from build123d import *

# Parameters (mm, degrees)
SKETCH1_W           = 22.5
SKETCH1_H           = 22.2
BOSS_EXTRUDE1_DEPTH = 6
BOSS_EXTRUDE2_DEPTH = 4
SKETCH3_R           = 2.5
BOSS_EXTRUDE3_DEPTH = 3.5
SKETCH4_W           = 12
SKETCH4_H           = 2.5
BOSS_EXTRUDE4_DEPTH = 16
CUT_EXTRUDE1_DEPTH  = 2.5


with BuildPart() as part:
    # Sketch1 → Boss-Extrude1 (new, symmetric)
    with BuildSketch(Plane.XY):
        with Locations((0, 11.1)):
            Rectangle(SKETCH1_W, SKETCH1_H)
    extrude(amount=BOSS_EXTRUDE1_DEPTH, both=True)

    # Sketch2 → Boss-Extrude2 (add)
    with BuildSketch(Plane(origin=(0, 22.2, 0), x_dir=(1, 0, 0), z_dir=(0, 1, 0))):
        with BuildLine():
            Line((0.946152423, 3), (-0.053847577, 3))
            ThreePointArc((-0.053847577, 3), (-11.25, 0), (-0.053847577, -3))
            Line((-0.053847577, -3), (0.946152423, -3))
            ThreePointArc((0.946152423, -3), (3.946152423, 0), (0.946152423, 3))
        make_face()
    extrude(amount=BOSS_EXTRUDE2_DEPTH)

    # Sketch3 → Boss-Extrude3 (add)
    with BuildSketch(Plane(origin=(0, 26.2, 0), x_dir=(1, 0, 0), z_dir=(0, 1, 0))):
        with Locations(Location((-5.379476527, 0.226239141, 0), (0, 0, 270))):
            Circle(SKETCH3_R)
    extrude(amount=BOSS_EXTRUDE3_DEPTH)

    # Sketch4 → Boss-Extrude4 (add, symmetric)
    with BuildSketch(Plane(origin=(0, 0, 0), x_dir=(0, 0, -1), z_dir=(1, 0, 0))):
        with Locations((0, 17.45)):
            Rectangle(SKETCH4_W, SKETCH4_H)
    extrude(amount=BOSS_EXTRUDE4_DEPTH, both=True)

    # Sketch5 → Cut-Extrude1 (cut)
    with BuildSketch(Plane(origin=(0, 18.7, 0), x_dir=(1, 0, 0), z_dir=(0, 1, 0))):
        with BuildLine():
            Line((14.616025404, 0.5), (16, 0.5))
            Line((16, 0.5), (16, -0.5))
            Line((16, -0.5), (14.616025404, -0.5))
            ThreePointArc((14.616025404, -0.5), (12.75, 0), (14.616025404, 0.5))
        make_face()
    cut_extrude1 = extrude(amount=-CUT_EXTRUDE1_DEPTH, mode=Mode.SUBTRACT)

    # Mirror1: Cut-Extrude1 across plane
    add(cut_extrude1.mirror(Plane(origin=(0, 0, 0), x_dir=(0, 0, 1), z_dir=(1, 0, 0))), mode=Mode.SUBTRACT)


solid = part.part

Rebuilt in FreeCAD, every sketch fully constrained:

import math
import FreeCAD as App
import Part
import Sketcher

V = App.Vector
Q = App.Units.Quantity

doc = App.newDocument("Part")
params = doc.addObject("Spreadsheet::Sheet", "Params")
for row, (alias, value) in enumerate([
    ("sketch1_width", "22.5 mm"),
    ("sketch1_height", "22.2 mm"),
    ("pad1_length", "12 mm"),
    ("sketch2_radius", "6 mm"),
    ("sketch2_radius2", "3 mm"),
    ("sketch2_width", "1 mm"),
    ("pad2_length", "4 mm"),
    ("sketch3_diameter", "5 mm"),
    ("pad3_length", "3.5 mm"),
    ("sketch4_height", "12 mm"),
    ("sketch4_width", "2.5 mm"),
    ("pad4_length", "32 mm"),
    ("sketch5_radius", "1 mm"),
    ("sketch5_height", "1 mm"),
    ("pocket1_length", "2.5 mm"),
], start=1):
    params.set(f"A{row}", alias)
    params.set(f"B{row}", "=" + value)
    params.setAlias(f"B{row}", alias)

body = doc.addObject("PartDesign::Body", "Body")

sketch1 = body.newObject("Sketcher::SketchObject", "Sketch")
sketch1.AttachmentSupport = (doc.getObject("XY_Plane"), [""])
sketch1.MapMode = "FlatFace"
sketch1.addGeometry([
    Part.LineSegment(V(-11, 22, 0), V(-11, 0, 0)),
    Part.LineSegment(V(-11, 0, 0), V(11, 0, 0)),
    Part.LineSegment(V(11, 0, 0), V(11, 22, 0)),
    Part.LineSegment(V(11, 22, 0), V(-11, 22, 0)),
], False)
sketch1.addConstraint([
    Sketcher.Constraint("Coincident", 0, 2, 1, 1),
    Sketcher.Constraint("Coincident", 1, 2, 2, 1),
    Sketcher.Constraint("Coincident", 2, 2, 3, 1),
    Sketcher.Constraint("Coincident", 3, 2, 0, 1),
    Sketcher.Constraint("Vertical", 0),
    Sketcher.Constraint("Horizontal", 1),
    Sketcher.Constraint("Vertical", 2),
    Sketcher.Constraint("Horizontal", 3),
    Sketcher.Constraint("Symmetric", 0, 2, 1, 2, -1, 1),
    Sketcher.Constraint("DistanceX", 1, 1, 1, 2, Q("22.5 mm")),
    Sketcher.Constraint("DistanceY", 0, 2, 0, 1, Q("22.2 mm")),
])
sketch1.setExpression("Constraints[9]", "Params.sketch1_width")
sketch1.setExpression("Constraints[10]", "Params.sketch1_height")
pad1 = body.newObject("PartDesign::Pad", "Pad")
pad1.Profile = sketch1
pad1.setExpression("Length", "Params.pad1_length")
pad1.Midplane = True

sketch2 = body.newObject("Sketcher::SketchObject", "Sketch001")
sketch2.AttachmentSupport = (doc.getObject("XZ_Plane"), [""])
sketch2.MapMode = "FlatFace"
sketch2.AttachmentOffset = App.Placement(V(0, 0, -22.2), App.Rotation())
sketch2.addGeometry([
    Part.LineSegment(V(0.9, -3, 0), V(-0.1, -3, 0)),
    Part.ArcOfCircle(Part.Circle(V(-5.2, 0, 0), V(0, 0, 1), 6), math.radians(30), math.radians(330)),
    Part.LineSegment(V(-0.1, 3, 0), V(0.9, 3, 0)),
    Part.ArcOfCircle(Part.Circle(V(0.9, 0, 0), V(0, 0, 1), 3), math.radians(-90), math.radians(90)),
], False)
sketch2.addConstraint([
    Sketcher.Constraint("Coincident", 0, 2, 1, 2),
    Sketcher.Constraint("Coincident", 1, 1, 2, 1),
    Sketcher.Constraint("Tangent", 2, 2, 3, 2),
    Sketcher.Constraint("Tangent", 3, 1, 0, 1),
    Sketcher.Constraint("Horizontal", 0),
    Sketcher.Constraint("Horizontal", 2),
    Sketcher.Constraint("Symmetric", 0, 2, 1, 1, -1),
    Sketcher.Constraint("Radius", 1, Q("6 mm")),
    Sketcher.Constraint("Radius", 3, Q("3 mm")),
    Sketcher.Constraint("DistanceX", 0, 2, 0, 1, Q("1 mm")),
    Sketcher.Constraint("DistanceX", 1, 3, -1, 1, Q("5.25 mm")),
])
sketch2.setExpression("Constraints[7]", "Params.sketch2_radius")
sketch2.setExpression("Constraints[8]", "Params.sketch2_radius2")
sketch2.setExpression("Constraints[9]", "Params.sketch2_width")
pad2 = body.newObject("PartDesign::Pad", "Pad001")
pad2.Profile = sketch2
pad2.setExpression("Length", "Params.pad2_length")
pad2.Reversed = True

sketch3 = body.newObject("Sketcher::SketchObject", "Sketch002")
sketch3.AttachmentSupport = (doc.getObject("XZ_Plane"), [""])
sketch3.MapMode = "FlatFace"
sketch3.AttachmentOffset = App.Placement(V(0, 0, -26.2), App.Rotation())
sketch3.addGeometry(Part.Circle(V(-5.4, -0.2, 0), V(0, 0, 1), 2.5), False)
sketch3.addConstraint([
    Sketcher.Constraint("Diameter", 0, Q("5 mm")),
    Sketcher.Constraint("DistanceY", 0, 3, -1, 1, Q("0.226239 mm")),
    Sketcher.Constraint("DistanceX", 0, 3, -1, 1, Q("5.379477 mm")),
])
sketch3.setExpression("Constraints[0]", "Params.sketch3_diameter")
pad3 = body.newObject("PartDesign::Pad", "Pad002")
pad3.Profile = sketch3
pad3.setExpression("Length", "Params.pad3_length")
pad3.Reversed = True

sketch4 = body.newObject("Sketcher::SketchObject", "Sketch003")
sketch4.AttachmentSupport = (doc.getObject("YZ_Plane"), [""])
sketch4.MapMode = "FlatFace"
sketch4.addGeometry([
    Part.LineSegment(V(18.7, 6, 0), V(16.2, 6, 0)),
    Part.LineSegment(V(16.2, 6, 0), V(16.2, -6, 0)),
    Part.LineSegment(V(16.2, -6, 0), V(18.7, -6, 0)),
    Part.LineSegment(V(18.7, -6, 0), V(18.7, 6, 0)),
], False)
sketch4.addConstraint([
    Sketcher.Constraint("Coincident", 0, 2, 1, 1),
    Sketcher.Constraint("Coincident", 1, 2, 2, 1),
    Sketcher.Constraint("Coincident", 2, 2, 3, 1),
    Sketcher.Constraint("Coincident", 3, 2, 0, 1),
    Sketcher.Constraint("Horizontal", 0),
    Sketcher.Constraint("Vertical", 1),
    Sketcher.Constraint("Horizontal", 2),
    Sketcher.Constraint("Vertical", 3),
    Sketcher.Constraint("DistanceY", 1, 2, 1, 1, Q("12 mm")),
    Sketcher.Constraint("DistanceX", 0, 2, 0, 1, Q("2.5 mm")),
    Sketcher.Constraint("DistanceY", -1, 1, 0, 2, Q("6 mm")),
    Sketcher.Constraint("DistanceX", -1, 1, 0, 2, Q("16.2 mm")),
])
sketch4.setExpression("Constraints[8]", "Params.sketch4_height")
sketch4.setExpression("Constraints[9]", "Params.sketch4_width")
pad4 = body.newObject("PartDesign::Pad", "Pad003")
pad4.Profile = sketch4
pad4.setExpression("Length", "Params.pad4_length")
pad4.Midplane = True

sketch5 = body.newObject("Sketcher::SketchObject", "Sketch004")
sketch5.AttachmentSupport = (doc.getObject("XZ_Plane"), [""])
sketch5.MapMode = "FlatFace"
sketch5.AttachmentOffset = App.Placement(V(0, 0, -18.7), App.Rotation())
sketch5.addGeometry([
    Part.LineSegment(V(16, -0.5, 0), V(14.6, -0.5, 0)),
    Part.ArcOfCircle(Part.Circle(V(13.8, 0, 0), V(0, 0, 1), 1), math.radians(30), math.radians(330)),
    Part.LineSegment(V(14.6, 0.5, 0), V(16, 0.5, 0)),
    Part.LineSegment(V(16, 0.5, 0), V(16, -0.5, 0)),
], False)
sketch5.addConstraint([
    Sketcher.Constraint("Coincident", 0, 2, 1, 2),
    Sketcher.Constraint("Coincident", 1, 1, 2, 1),
    Sketcher.Constraint("Coincident", 2, 2, 3, 1),
    Sketcher.Constraint("Coincident", 3, 2, 0, 1),
    Sketcher.Constraint("Horizontal", 0),
    Sketcher.Constraint("Horizontal", 2),
    Sketcher.Constraint("Vertical", 3),
    Sketcher.Constraint("Symmetric", 0, 2, 1, 1, -1),
    Sketcher.Constraint("Radius", 1, Q("1 mm")),
    Sketcher.Constraint("DistanceY", 3, 2, 3, 1, Q("1 mm")),
    Sketcher.Constraint("DistanceX", -1, 1, 2, 2, Q("16 mm")),
    Sketcher.Constraint("DistanceX", -1, 1, 1, 3, Q("13.75 mm")),
])
sketch5.setExpression("Constraints[8]", "Params.sketch5_radius")
sketch5.setExpression("Constraints[9]", "Params.sketch5_height")
pocket1 = body.newObject("PartDesign::Pocket", "Pocket")
pocket1.Profile = sketch5
pocket1.setExpression("Length", "Params.pocket1_length")
pocket1.Reversed = True
doc.recompute()

mirrored = body.newObject("PartDesign::Mirrored", "Mirrored")
mirrored.Originals = [pocket1]
mirrored.MirrorPlane = (doc.getObject("YZ_Plane"), [""])
body.Tip = mirrored

doc.recompute()
